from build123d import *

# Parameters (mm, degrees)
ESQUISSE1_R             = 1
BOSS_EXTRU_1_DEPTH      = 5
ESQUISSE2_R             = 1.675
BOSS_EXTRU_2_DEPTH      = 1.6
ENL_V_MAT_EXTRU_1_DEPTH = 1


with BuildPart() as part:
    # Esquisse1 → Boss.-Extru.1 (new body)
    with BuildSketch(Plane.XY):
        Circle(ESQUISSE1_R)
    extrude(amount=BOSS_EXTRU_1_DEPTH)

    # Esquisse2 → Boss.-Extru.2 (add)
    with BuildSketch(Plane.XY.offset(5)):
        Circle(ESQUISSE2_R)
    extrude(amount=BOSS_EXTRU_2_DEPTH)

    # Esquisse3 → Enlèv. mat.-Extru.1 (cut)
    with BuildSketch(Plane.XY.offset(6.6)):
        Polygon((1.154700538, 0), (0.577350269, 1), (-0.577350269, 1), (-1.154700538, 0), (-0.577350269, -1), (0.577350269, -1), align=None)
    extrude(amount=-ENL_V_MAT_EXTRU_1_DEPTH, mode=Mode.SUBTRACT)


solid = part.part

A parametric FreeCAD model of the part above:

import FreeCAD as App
import Part
import Sketcher
from FreeCAD import Vector
Q = App.Units.Quantity


def add_polygon(sketch, points):
    """Adds a closed chain of lines whose ends are joined by coincident constraints."""
    first, n = sketch.GeometryCount, len(points)
    for a, b in zip(points, points[1:] + points[:1]):
        sketch.addGeometry(Part.LineSegment(App.Vector(*a, 0), App.Vector(*b, 0)), False)
    for i in range(n):
        sketch.addConstraint(Sketcher.Constraint("Coincident", first + i, 2, first + (i + 1) % n, 1))

doc = App.newDocument("Part")
body = doc.addObject("PartDesign::Body", "Body")

# Sketch on XY plane
sketch1 = doc.addObject("Sketcher::SketchObject", "Sketch")
body.addObject(sketch1)
sketch1.AttachmentSupport = (doc.XY_Plane, [""])
sketch1.MapMode = "FlatFace"
sketch1.addGeometry(Part.Circle(Vector(0, 0, 0), Vector(0, 0, 1), 1), False)
sketch1.addConstraint([
    Sketcher.Constraint("Coincident", 0, 3, -1, 1),
    Sketcher.Constraint("Diameter", 0, 2.0),
])
pad1 = doc.addObject("PartDesign::Pad", "Pad")
body.addObject(pad1)
pad1.Profile = sketch1
pad1.Length = 5

# Sketch on XY plane
sketch2 = doc.addObject("Sketcher::SketchObject", "Sketch001")
body.addObject(sketch2)
sketch2.AttachmentSupport = (doc.XY_Plane, [""])
sketch2.MapMode = "FlatFace"
sketch2.AttachmentOffset = App.Placement(Vector(0, 0, 5), App.Rotation())
sketch2.addGeometry(Part.Circle(Vector(0, 0, 0), Vector(0, 0, 1), 1.7), False)
sketch2.addConstraint([
    Sketcher.Constraint("Coincident", 0, 3, -1, 1),
    Sketcher.Constraint("Diameter", 0, 3.35),
])
pad2 = doc.addObject("PartDesign::Pad", "Pad001")
body.addObject(pad2)
pad2.Profile = sketch2
pad2.Length = 1.6

# Sketch on XY plane
sketch3 = doc.addObject("Sketcher::SketchObject", "Sketch002")
body.addObject(sketch3)
sketch3.AttachmentSupport = (doc.XY_Plane, [""])
sketch3.MapMode = "FlatFace"
sketch3.AttachmentOffset = App.Placement(Vector(0, 0, 6.6), App.Rotation())
add_polygon(sketch3, [(1.2, 0), (0.6, 1), (-0.6, 1), (-1.2, 0), (-0.6, -1), (0.6, -1)])  # lines 0-5
sketch3.addConstraint([
    Sketcher.Constraint("Horizontal", 1),
    Sketcher.Constraint("Horizontal", 4),
    Sketcher.Constraint("Symmetric", 0, 2, 3, 2, -1, 1),
    Sketcher.Constraint("Symmetric", 2, 2, 5, 2, -1, 1),
    Sketcher.Constraint("PointOnObject", 2, 2, -1),
    Sketcher.Constraint("Parallel", 2, 5),
    Sketcher.Constraint("Vertical", 1, 2, 3, 2),
    Sketcher.Constraint("Angle", 0, Q("120 deg")),
    Sketcher.Constraint("DistanceY", -1, 1, 0, 2, 1.0),
    Sketcher.Constraint("DistanceX", 1, 2, 1, 1, 1.154701),
])
pocket1 = doc.addObject("PartDesign::Pocket", "Pocket")
body.addObject(pocket1)
pocket1.Profile = sketch3
pocket1.Length = 1

doc.recompute()
